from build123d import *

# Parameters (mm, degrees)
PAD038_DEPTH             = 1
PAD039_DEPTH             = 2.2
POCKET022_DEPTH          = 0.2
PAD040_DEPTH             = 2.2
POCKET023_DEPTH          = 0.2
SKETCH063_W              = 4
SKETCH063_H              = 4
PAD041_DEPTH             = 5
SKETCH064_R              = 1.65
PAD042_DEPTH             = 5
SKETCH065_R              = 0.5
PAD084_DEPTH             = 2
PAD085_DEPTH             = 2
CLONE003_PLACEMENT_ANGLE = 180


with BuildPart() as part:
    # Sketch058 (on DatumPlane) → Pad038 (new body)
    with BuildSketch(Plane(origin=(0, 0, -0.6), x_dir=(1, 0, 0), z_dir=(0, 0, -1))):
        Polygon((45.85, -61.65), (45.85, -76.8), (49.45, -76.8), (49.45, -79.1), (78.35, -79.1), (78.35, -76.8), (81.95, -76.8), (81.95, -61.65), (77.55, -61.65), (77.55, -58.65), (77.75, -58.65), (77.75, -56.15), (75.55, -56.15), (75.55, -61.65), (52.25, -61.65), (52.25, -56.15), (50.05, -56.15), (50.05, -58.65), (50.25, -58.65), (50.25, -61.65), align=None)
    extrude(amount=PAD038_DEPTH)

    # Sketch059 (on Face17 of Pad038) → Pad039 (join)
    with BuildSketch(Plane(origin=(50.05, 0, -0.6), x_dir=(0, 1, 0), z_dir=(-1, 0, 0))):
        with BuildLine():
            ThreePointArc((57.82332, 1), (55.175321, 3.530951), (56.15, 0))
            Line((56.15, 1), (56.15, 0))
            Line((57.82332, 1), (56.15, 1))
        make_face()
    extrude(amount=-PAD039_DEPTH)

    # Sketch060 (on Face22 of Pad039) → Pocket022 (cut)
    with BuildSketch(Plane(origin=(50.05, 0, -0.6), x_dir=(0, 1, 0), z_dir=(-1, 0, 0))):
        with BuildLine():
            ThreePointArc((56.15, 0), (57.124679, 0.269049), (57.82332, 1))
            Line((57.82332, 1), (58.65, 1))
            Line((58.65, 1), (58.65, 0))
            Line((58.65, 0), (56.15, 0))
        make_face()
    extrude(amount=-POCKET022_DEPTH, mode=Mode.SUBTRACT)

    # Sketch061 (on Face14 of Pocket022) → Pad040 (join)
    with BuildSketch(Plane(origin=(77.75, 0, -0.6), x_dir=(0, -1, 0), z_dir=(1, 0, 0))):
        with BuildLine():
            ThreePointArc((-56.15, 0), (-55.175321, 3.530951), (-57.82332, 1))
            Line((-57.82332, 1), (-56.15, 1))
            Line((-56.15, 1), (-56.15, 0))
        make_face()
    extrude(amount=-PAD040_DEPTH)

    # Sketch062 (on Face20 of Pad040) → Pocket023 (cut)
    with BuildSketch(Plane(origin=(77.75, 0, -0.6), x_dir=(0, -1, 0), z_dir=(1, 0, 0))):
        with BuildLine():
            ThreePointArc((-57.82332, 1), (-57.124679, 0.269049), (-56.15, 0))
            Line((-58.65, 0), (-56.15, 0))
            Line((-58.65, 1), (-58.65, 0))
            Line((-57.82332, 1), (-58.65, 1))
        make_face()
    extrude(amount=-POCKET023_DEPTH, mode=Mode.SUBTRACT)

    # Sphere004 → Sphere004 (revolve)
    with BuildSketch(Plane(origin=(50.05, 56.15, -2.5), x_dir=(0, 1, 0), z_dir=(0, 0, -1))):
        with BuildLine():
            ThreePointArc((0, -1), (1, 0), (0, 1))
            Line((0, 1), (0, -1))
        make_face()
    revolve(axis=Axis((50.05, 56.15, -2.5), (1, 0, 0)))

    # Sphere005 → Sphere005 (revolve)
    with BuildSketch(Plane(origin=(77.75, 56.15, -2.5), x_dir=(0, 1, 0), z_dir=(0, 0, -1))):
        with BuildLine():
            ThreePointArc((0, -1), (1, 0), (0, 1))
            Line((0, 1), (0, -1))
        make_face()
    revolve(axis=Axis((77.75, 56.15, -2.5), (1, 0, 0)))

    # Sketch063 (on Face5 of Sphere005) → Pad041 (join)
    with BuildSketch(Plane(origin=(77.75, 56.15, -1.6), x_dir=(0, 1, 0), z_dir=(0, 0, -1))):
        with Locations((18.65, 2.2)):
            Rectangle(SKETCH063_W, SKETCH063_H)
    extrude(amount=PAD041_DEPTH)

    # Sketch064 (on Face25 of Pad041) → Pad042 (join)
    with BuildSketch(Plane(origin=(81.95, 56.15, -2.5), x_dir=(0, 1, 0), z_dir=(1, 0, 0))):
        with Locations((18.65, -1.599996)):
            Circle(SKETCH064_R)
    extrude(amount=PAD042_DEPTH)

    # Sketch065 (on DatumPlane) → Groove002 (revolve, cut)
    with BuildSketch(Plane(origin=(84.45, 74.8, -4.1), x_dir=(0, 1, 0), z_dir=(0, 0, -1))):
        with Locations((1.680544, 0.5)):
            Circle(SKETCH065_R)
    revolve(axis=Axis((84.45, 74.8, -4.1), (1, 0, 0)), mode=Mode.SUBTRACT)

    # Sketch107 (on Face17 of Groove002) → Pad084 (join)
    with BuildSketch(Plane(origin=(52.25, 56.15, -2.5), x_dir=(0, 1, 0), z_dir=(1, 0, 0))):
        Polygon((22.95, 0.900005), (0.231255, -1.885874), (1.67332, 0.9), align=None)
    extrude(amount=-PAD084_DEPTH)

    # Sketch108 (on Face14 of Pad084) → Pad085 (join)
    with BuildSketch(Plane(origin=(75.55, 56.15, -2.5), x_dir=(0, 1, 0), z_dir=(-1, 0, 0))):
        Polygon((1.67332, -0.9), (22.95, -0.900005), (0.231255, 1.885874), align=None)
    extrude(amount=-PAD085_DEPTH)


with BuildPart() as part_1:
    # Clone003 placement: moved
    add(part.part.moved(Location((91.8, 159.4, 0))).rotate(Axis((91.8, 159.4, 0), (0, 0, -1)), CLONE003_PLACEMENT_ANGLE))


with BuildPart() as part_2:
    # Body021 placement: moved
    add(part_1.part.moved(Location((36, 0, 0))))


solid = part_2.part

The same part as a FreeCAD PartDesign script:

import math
import FreeCAD as App
import Part
import Sketcher
Q = App.Units.Quantity


def add_polygon(sketch, points):
    """Adds a closed chain of lines whose ends are joined by coincident constraints."""
    first, n = sketch.GeometryCount, len(points)
    for a, b in zip(points, points[1:] + points[:1]):
        sketch.addGeometry(Part.LineSegment(App.Vector(*a, 0), App.Vector(*b, 0)), False)
    for i in range(n):
        sketch.addConstraint(Sketcher.Constraint("Coincident", first + i, 2, first + (i + 1) % n, 1))

doc = App.newDocument("Part")
body = doc.addObject("PartDesign::Body", "Body")

# Sketch on XY plane
sketch1 = body.newObject("Sketcher::SketchObject", "Sketch")
sketch1.AttachmentSupport = (doc.getObject("XY_Plane"), [""])
sketch1.MapMode = "FlatFace"
sketch1.AttachmentOffset = App.Placement(App.Vector(0, 0, -0.6), App.Rotation())
add_polygon(sketch1, [(45.85, 61.65), (45.85, 76.8), (49.45, 76.8), (49.45, 79.1), (78.35, 79.1), (78.35, 76.8), (81.95, 76.8), (81.95, 61.65), (77.55, 61.65), (77.55, 58.65), (77.75, 58.65), (77.75, 56.15), (75.55, 56.15), (75.55, 61.65), (52.25, 61.65), (52.25, 56.15), (50.05, 56.15), (50.05, 58.65), (50.25, 58.65), (50.25, 61.65)])  # lines 0-19
sketch1.addConstraint([
    Sketcher.Constraint("Vertical", 0),
    Sketcher.Constraint("Horizontal", 1),
    Sketcher.Constraint("Vertical", 2),
    Sketcher.Constraint("Horizontal", 3),
    Sketcher.Constraint("Vertical", 4),
    Sketcher.Constraint("Horizontal", 5),
    Sketcher.Constraint("Vertical", 6),
    Sketcher.Constraint("Horizontal", 7),
    Sketcher.Constraint("Vertical", 8),
    Sketcher.Constraint("Horizontal", 9),
    Sketcher.Constraint("Vertical", 10),
    Sketcher.Constraint("Horizontal", 11),
    Sketcher.Constraint("Vertical", 12),
    Sketcher.Constraint("Horizontal", 13),
    Sketcher.Constraint("Vertical", 14),
    Sketcher.Constraint("Horizontal", 15),
    Sketcher.Constraint("Vertical", 16),
    Sketcher.Constraint("Horizontal", 17),
    Sketcher.Constraint("Vertical", 18),
    Sketcher.Constraint("Horizontal", 19),
    Sketcher.Constraint("Horizontal", 1, 2, 4, 2),
    Sketcher.Constraint("Horizontal", 7, 2, 12, 2),
    Sketcher.Constraint("Horizontal", 11, 2, 14, 2),
    Sketcher.Constraint("Horizontal", 9, 2, 16, 2),
    Sketcher.Constraint("Horizontal", 13, 2, 18, 2),
    Sketcher.Constraint("Equal", 1, 5),
    Sketcher.Constraint("Equal", 11, 15),
    Sketcher.Constraint("Equal", 9, 17),
    Sketcher.Constraint("Equal", 7, 19),
    Sketcher.Constraint("DistanceY", 8, 2, 8, 1, Q("3 mm")),
    Sketcher.Constraint("DistanceX", 1, 1, 1, 2, Q("3.6 mm")),
    Sketcher.Constraint("DistanceX", 3, 1, 3, 2, Q("28.9 mm")),
    Sketcher.Constraint("DistanceX", 7, 2, 7, 1, Q("4.4 mm")),
    Sketcher.Constraint("DistanceX", 9, 1, 9, 2, Q("0.2 mm")),
    Sketcher.Constraint("DistanceX", 11, 2, 11, 1, Q("2.2 mm")),
    Sketcher.Constraint("DistanceY", 2, 1, 2, 2, Q("2.3 mm")),
    Sketcher.Constraint("DistanceY", 10, 2, 10, 1, Q("2.5 mm")),
    Sketcher.Constraint("DistanceY", 0, 1, 0, 2, Q("15.15 mm")),
    Sketcher.Constraint("DistanceY", -1, 1, 0, 2, Q("76.8 mm")),
    Sketcher.Constraint("DistanceX", -1, 1, 0, 2, Q("45.85 mm")),
])
pad1 = body.newObject("PartDesign::Pad", "Pad")
pad1.Profile = sketch1
pad1.Length = 1
pad1.Reversed = True

# Sketch on YZ plane
sketch2 = body.newObject("Sketcher::SketchObject", "Sketch001")
sketch2.AttachmentSupport = (doc.getObject("YZ_Plane"), [""])
sketch2.MapMode = "FlatFace"
sketch2.AttachmentOffset = App.Placement(App.Vector(0, 0, 50.05), App.Rotation())
sketch2.addGeometry([
    Part.ArcOfCircle(Part.Circle(App.Vector(56.1, -2.5, 0), App.Vector(0, 0, 1), 1.9), math.radians(90), math.radians(388)),
    Part.LineSegment(App.Vector(56.1, -0.6, 0), App.Vector(56.1, -1.6, 0)),
    Part.LineSegment(App.Vector(56.1, -1.6, 0), App.Vector(57.8, -1.6, 0)),
], False)
sketch2.addConstraint([
    Sketcher.Constraint("Coincident", 0, 1, 1, 1),
    Sketcher.Constraint("Coincident", 1, 2, 2, 1),
    Sketcher.Constraint("Coincident", 2, 2, 0, 2),
    Sketcher.Constraint("Vertical", 1),
    Sketcher.Constraint("Horizontal", 2),
    Sketcher.Constraint("Radius", 0, Q("1.9 mm")),
    Sketcher.Constraint("DistanceY", 1, 2, 1, 1, Q("1 mm")),
    Sketcher.Constraint("DistanceY", 0, 3, -1, 1, Q("2.5 mm")),
    Sketcher.Constraint("DistanceX", -1, 1, 0, 3, Q("56.15 mm")),
    Sketcher.Constraint("DistanceX", -1, 1, 0, 1, Q("56.15 mm")),
])
pad2 = body.newObject("PartDesign::Pad", "Pad001")
pad2.Profile = sketch2
pad2.Length = 2.2

# Sketch on YZ plane
sketch3 = body.newObject("Sketcher::SketchObject", "Sketch002")
sketch3.AttachmentSupport = (doc.getObject("YZ_Plane"), [""])
sketch3.MapMode = "FlatFace"
sketch3.AttachmentOffset = App.Placement(App.Vector(0, 0, 50.05), App.Rotation())
sketch3.addGeometry([
    Part.ArcOfCircle(Part.Circle(App.Vector(56.2, -2.5, 0), App.Vector(0, 0, 1), 1.9), math.radians(28), math.radians(90)),
    Part.LineSegment(App.Vector(56.1, -0.6, 0), App.Vector(58.6, -0.6, 0)),
    Part.LineSegment(App.Vector(58.6, -0.6, 0), App.Vector(58.6, -1.6, 0)),
    Part.LineSegment(App.Vector(58.6, -1.6, 0), App.Vector(57.8, -1.6, 0)),
], False)
sketch3.addConstraint([
    Sketcher.Constraint("Tangent", 0, 2, 1, 1),
    Sketcher.Constraint("Coincident", 1, 2, 2, 1),
    Sketcher.Constraint("Coincident", 2, 2, 3, 1),
    Sketcher.Constraint("Coincident", 3, 2, 0, 1),
    Sketcher.Constraint("Horizontal", 1),
    Sketcher.Constraint("Vertical", 2),
    Sketcher.Constraint("Horizontal", 3),
    Sketcher.Constraint("Radius", 0, Q("1.899999 mm")),
    Sketcher.Constraint("DistanceY", 2, 2, 2, 1, Q("1 mm")),
    Sketcher.Constraint("DistanceX", 1, 1, 1, 2, Q("2.5 mm")),
    Sketcher.Constraint("DistanceY", 0, 3, -1, 1, Q("2.499999 mm")),
    Sketcher.Constraint("DistanceX", -1, 1, 0, 3, Q("56.15 mm")),
])
pocket1 = body.newObject("PartDesign::Pocket", "Pocket")
pocket1.Profile = sketch3
pocket1.Length = 0.2
pocket1.Reversed = True

# Sketch on YZ plane
sketch4 = body.newObject("Sketcher::SketchObject", "Sketch003")
sketch4.AttachmentSupport = (doc.getObject("YZ_Plane"), [""])
sketch4.MapMode = "FlatFace"
sketch4.AttachmentOffset = App.Placement(App.Vector(0, 0, 77.75), App.Rotation())
sketch4.addGeometry([
    Part.ArcOfCircle(Part.Circle(App.Vector(56.1, -2.5, 0), App.Vector(0, 0, 1), 1.9), math.radians(90), math.radians(388)),
    Part.LineSegment(App.Vector(57.8, -1.6, 0), App.Vector(56.1, -1.6, 0)),
    Part.LineSegment(App.Vector(56.1, -1.6, 0), App.Vector(56.1, -0.6, 0)),
], False)
sketch4.addConstraint([
    Sketcher.Constraint("Coincident", 0, 2, 1, 1),
    Sketcher.Constraint("Coincident", 1, 2, 2, 1),
    Sketcher.Constraint("Coincident", 2, 2, 0, 1),
    Sketcher.Constraint("Horizontal", 1),
    Sketcher.Constraint("Vertical", 2),
    Sketcher.Constraint("Vertical", 0, 3, 1, 2),
    Sketcher.Constraint("Radius", 0, Q("1.9 mm")),
    Sketcher.Constraint("DistanceY", 2, 1, 2, 2, Q("1 mm")),
    Sketcher.Constraint("DistanceY", 0, 3, -1, 1, Q("2.5 mm")),
    Sketcher.Constraint("DistanceX", -1, 1, 0, 3, Q("56.15 mm")),
])
pad3 = body.newObject("PartDesign::Pad", "Pad002")
pad3.Profile = sketch4
pad3.Length = 2.2
pad3.Reversed = True

# Sketch on YZ plane
sketch5 = body.newObject("Sketcher::SketchObject", "Sketch004")
sketch5.AttachmentSupport = (doc.getObject("YZ_Plane"), [""])
sketch5.MapMode = "FlatFace"
sketch5.AttachmentOffset = App.Placement(App.Vector(0, 0, 77.75), App.Rotation())
sketch5.addGeometry([
    Part.ArcOfCircle(Part.Circle(App.Vector(56.2, -2.5, 0), App.Vector(0, 0, 1), 1.9), math.radians(28), math.radians(90)),
    Part.LineSegment(App.Vector(57.8, -1.6, 0), App.Vector(58.6, -1.6, 0)),
    Part.LineSegment(App.Vector(58.6, -1.6, 0), App.Vector(58.6, -0.6, 0)),
    Part.LineSegment(App.Vector(58.6, -0.6, 0), App.Vector(56.1, -0.6, 0)),
], False)
sketch5.addConstraint([
    Sketcher.Constraint("Coincident", 0, 1, 1, 1),
    Sketcher.Constraint("Coincident", 1, 2, 2, 1),
    Sketcher.Constraint("Coincident", 2, 2, 3, 1),
    Sketcher.Constraint("Tangent", 3, 2, 0, 2),
    Sketcher.Constraint("Horizontal", 1),
    Sketcher.Constraint("Vertical", 2),
    Sketcher.Constraint("Horizontal", 3),
    Sketcher.Constraint("Radius", 0, Q("1.899999 mm")),
    Sketcher.Constraint("DistanceY", 2, 1, 2, 2, Q("1 mm")),
    Sketcher.Constraint("DistanceX", 3, 2, 3, 1, Q("2.5 mm")),
    Sketcher.Constraint("DistanceY", 0, 3, -1, 1, Q("2.499999 mm")),
    Sketcher.Constraint("DistanceX", -1, 1, 0, 3, Q("56.15 mm")),
])
pocket2 = body.newObject("PartDesign::Pocket", "Pocket001")
pocket2.Profile = sketch5
pocket2.Length = 0.2

# Sketch on XY plane
sketch6 = body.newObject("Sketcher::SketchObject", "Sketch005")
sketch6.AttachmentSupport = (doc.getObject("XY_Plane"), [""])
sketch6.MapMode = "FlatFace"
sketch6.AttachmentOffset = App.Placement(App.Vector(0, 0, -2.5), App.Rotation())
sketch6.addGeometry([
    Part.ArcOfCircle(Part.Circle(App.Vector(50, 56.1, 0), App.Vector(0, 0, 1), 1), math.radians(0), math.radians(180)),
    Part.LineSegment(App.Vector(51, 56.1, 0), App.Vector(49, 56.1, 0)),
], False)
sketch6.addGeometry(Part.LineSegment(App.Vector(49, 56.1, 0), App.Vector(51, 56.1, 0)), True)  # axis
sketch6.addConstraint([
    Sketcher.Constraint("Coincident", 0, 1, 1, 1),
    Sketcher.Constraint("Coincident", 1, 2, 0, 2),
    Sketcher.Constraint("Horizontal", 1),
    Sketcher.Constraint("Horizontal", 2),
    Sketcher.Constraint("Coincident", 2, 1, 1, 2),
    Sketcher.Constraint("Equal", 1, 2),
    Sketcher.Constraint("Radius", 0, Q("1 mm")),
    Sketcher.Constraint("DistanceX", -1, 1, 0, 3, Q("50.05 mm")),
    Sketcher.Constraint("DistanceY", -1, 1, 0, 3, Q("56.15 mm")),
    Sketcher.Constraint("DistanceY", -1, 1, 0, 1, Q("56.15 mm")),
])
revolution = body.newObject("PartDesign::Revolution", "Revolution")
revolution.Profile = sketch6
revolution.ReferenceAxis = (sketch6, ["Axis0"])
revolution.Angle = 360

# Sketch on XY plane
sketch7 = body.newObject("Sketcher::SketchObject", "Sketch006")
sketch7.AttachmentSupport = (doc.getObject("XY_Plane"), [""])
sketch7.MapMode = "FlatFace"
sketch7.AttachmentOffset = App.Placement(App.Vector(0, 0, -2.5), App.Rotation())
sketch7.addGeometry([
    Part.ArcOfCircle(Part.Circle(App.Vector(77.8, 56.1, 0), App.Vector(0, 0, 1), 1), math.radians(0), math.radians(180)),
    Part.LineSegment(App.Vector(78.8, 56.1, 0), App.Vector(76.8, 56.1, 0)),
], False)
sketch7.addGeometry(Part.LineSegment(App.Vector(76.8, 56.1, 0), App.Vector(78.8, 56.1, 0)), True)  # axis
sketch7.addConstraint([
    Sketcher.Constraint("Coincident", 0, 1, 1, 1),
    Sketcher.Constraint("Coincident", 1, 2, 0, 2),
    Sketcher.Constraint("Horizontal", 1),
    Sketcher.Constraint("Horizontal", 2),
    Sketcher.Constraint("Coincident", 2, 1, 1, 2),
    Sketcher.Constraint("Equal", 1, 2),
    Sketcher.Constraint("Radius", 0, Q("1 mm")),
    Sketcher.Constraint("DistanceX", -1, 1, 0, 3, Q("77.75 mm")),
    Sketcher.Constraint("DistanceY", -1, 1, 0, 3, Q("56.15 mm")),
    Sketcher.Constraint("DistanceY", -1, 1, 0, 1, Q("56.15 mm")),
])
revolution2 = body.newObject("PartDesign::Revolution", "Revolution001")
revolution2.Profile = sketch7
revolution2.ReferenceAxis = (sketch7, ["Axis0"])
revolution2.Angle = 360

# Sketch on XY plane
sketch8 = body.newObject("Sketcher::SketchObject", "Sketch007")
sketch8.AttachmentSupport = (doc.getObject("XY_Plane"), [""])
sketch8.MapMode = "FlatFace"
sketch8.AttachmentOffset = App.Placement(App.Vector(0, 0, -1.6), App.Rotation())
add_polygon(sketch8, [(82, 72.8), (78, 72.8), (78, 76.8), (82, 76.8)])  # lines 0-3
sketch8.addConstraint([
    Sketcher.Constraint("Horizontal", 0),
    Sketcher.Constraint("Vertical", 1),
    Sketcher.Constraint("Horizontal", 2),
    Sketcher.Constraint("Vertical", 3),
    Sketcher.Constraint("Equal", 2, 1),
    Sketcher.Constraint("DistanceX", 0, 2, 0, 1, Q("4 mm")),
    Sketcher.Constraint("DistanceY", -1, 1, 0, 2, Q("72.8 mm")),
    Sketcher.Constraint("DistanceX", -1, 1, 0, 2, Q("77.95 mm")),
])
pad4 = body.newObject("PartDesign::Pad", "Pad003")
pad4.Profile = sketch8
pad4.Length = 5
pad4.Reversed = True

# Sketch on YZ plane
sketch9 = body.newObject("Sketcher::SketchObject", "Sketch008")
sketch9.AttachmentSupport = (doc.getObject("YZ_Plane"), [""])
sketch9.MapMode = "FlatFace"
sketch9.AttachmentOffset = App.Placement(App.Vector(0, 0, 81.95), App.Rotation())
sketch9.addGeometry(Part.Circle(App.Vector(74.8, -4.1, 0), App.Vector(0, 0, 1), 1.6), False)
sketch9.addConstraint([
    Sketcher.Constraint("Diameter", 0, Q("3.3 mm")),
    Sketcher.Constraint("DistanceX", -1, 1, 0, 3, Q("74.8 mm")),
    Sketcher.Constraint("DistanceY", 0, 3, -1, 1, Q("4.099996 mm")),
])
pad5 = body.newObject("PartDesign::Pad", "Pad004")
pad5.Profile = sketch9
pad5.Length = 5

# Sketch on XY plane
sketch10 = body.newObject("Sketcher::SketchObject", "Sketch009")
sketch10.AttachmentSupport = (doc.getObject("XY_Plane"), [""])
sketch10.MapMode = "FlatFace"
sketch10.AttachmentOffset = App.Placement(App.Vector(0, 0, -4.1), App.Rotation())
sketch10.addGeometry(Part.Circle(App.Vector(85, 76.5, 0), App.Vector(0, 0, 1), 0.5), False)
sketch10.addGeometry(Part.LineSegment(App.Vector(85, 74.8, 0), App.Vector(95, 74.8, 0)), True)  # axis
sketch10.addConstraint([
    Sketcher.Constraint("Horizontal", 1),
    Sketcher.Constraint("Vertical", 0, 3, 1, 1),
    Sketcher.Constraint("Diameter", 0, Q("1 mm")),
    Sketcher.Constraint("DistanceX", 1, 1, 1, 2, Q("10 mm")),
    Sketcher.Constraint("DistanceY", -1, 1, 1, 1, Q("74.8 mm")),
    Sketcher.Constraint("DistanceX", -1, 1, 0, 3, Q("84.95 mm")),
    Sketcher.Constraint("DistanceY", -1, 1, 0, 3, Q("76.480544 mm")),
])
groove = body.newObject("PartDesign::Groove", "Groove")
groove.Profile = sketch10
groove.ReferenceAxis = (sketch10, ["Axis0"])
groove.Angle = 360

# Sketch on YZ plane
sketch11 = body.newObject("Sketcher::SketchObject", "Sketch010")
sketch11.AttachmentSupport = (doc.getObject("YZ_Plane"), [""])
sketch11.MapMode = "FlatFace"
sketch11.AttachmentOffset = App.Placement(App.Vector(0, 0, 52.25), App.Rotation())
add_polygon(sketch11, [(56.4, -4.4), (79.1, -1.6), (57.8, -1.6)])  # lines 0-2
sketch11.addConstraint([
    Sketcher.Constraint("Angle", 1, Q("-179.999987 deg")),
    Sketcher.Constraint("DistanceX", -1, 1, 0, 2, Q("79.1 mm")),
    Sketcher.Constraint("DistanceY", 1, 2, -1, 1, Q("1.6 mm")),
    Sketcher.Constraint("Distance", 1, Q("21.27668 mm")),
    Sketcher.Constraint("Distance", 2, Q("3.13698 mm")),
    Sketcher.Constraint("DistanceY", 2, 2, 0, 2, Q("2.785879 mm")),
])
pad6 = body.newObject("PartDesign::Pad", "Pad005")
pad6.Profile = sketch11
pad6.Length = 2
pad6.Reversed = True

# Sketch on YZ plane
sketch12 = body.newObject("Sketcher::SketchObject", "Sketch011")
sketch12.AttachmentSupport = (doc.getObject("YZ_Plane"), [""])
sketch12.MapMode = "FlatFace"
sketch12.AttachmentOffset = App.Placement(App.Vector(0, 0, 75.55), App.Rotation())
add_polygon(sketch12, [(57.8, -1.6), (79.1, -1.6), (56.4, -4.4)])  # lines 0-2
sketch12.addConstraint([
    Sketcher.Constraint("Angle", 0, Q("0.000013 deg")),
    Sketcher.Constraint("DistanceX", -1, 1, 0, 2, Q("79.1 mm")),
    Sketcher.Constraint("DistanceY", 2, 2, -1, 1, Q("1.6 mm")),
    Sketcher.Constraint("Distance", 0, Q("21.27668 mm")),
    Sketcher.Constraint("Distance", 2, Q("3.13698 mm")),
    Sketcher.Constraint("DistanceY", 1, 2, 0, 2, Q("2.785879 mm")),
])
pad7 = body.newObject("PartDesign::Pad", "Pad006")
pad7.Profile = sketch12
pad7.Length = 2
body2 = doc.addObject("PartDesign::Body", "Body001")
doc.recompute()

body.Placement = App.Placement(App.Vector(91.8, 159.4, 0), App.Rotation(App.Vector(0, 0, -1), 180))
boolean = body2.newObject("PartDesign::Boolean", "Boolean")
boolean.Type = "Fuse"
boolean.addObjects([body])
body3 = doc.addObject("PartDesign::Body", "Body002")
doc.recompute()

body2.Placement = App.Placement(App.Vector(36, 0, 0), App.Rotation(App.Vector(0, 0, 1), 0))
boolean2 = body3.newObject("PartDesign::Boolean", "Boolean001")
boolean2.Type = "Fuse"
boolean2.addObjects([body2])

doc.recompute()
